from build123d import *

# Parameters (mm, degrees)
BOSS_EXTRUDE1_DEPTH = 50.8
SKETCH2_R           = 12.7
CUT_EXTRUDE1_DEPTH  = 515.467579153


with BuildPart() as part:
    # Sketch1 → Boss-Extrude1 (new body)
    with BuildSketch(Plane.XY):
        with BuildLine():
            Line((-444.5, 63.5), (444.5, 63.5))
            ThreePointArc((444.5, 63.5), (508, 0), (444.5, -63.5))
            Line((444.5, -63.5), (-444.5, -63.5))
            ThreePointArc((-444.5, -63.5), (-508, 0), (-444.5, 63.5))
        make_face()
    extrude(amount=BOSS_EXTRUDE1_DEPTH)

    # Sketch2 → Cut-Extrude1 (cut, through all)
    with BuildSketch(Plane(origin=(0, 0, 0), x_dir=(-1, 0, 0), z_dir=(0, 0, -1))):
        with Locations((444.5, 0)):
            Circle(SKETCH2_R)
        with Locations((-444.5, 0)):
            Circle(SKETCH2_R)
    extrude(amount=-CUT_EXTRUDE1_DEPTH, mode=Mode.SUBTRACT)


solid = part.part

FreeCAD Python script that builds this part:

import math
import FreeCAD as App
import Part
import Sketcher

V = App.Vector
Q = App.Units.Quantity

doc = App.newDocument("Part")
body = doc.addObject("PartDesign::Body", "Body")

# Sketch on XY plane
sketch1 = body.newObject("Sketcher::SketchObject", "Sketch")
sketch1.AttachmentSupport = (doc.getObject("XY_Plane"), [""])
sketch1.MapMode = "FlatFace"
sketch1.addGeometry([
    Part.LineSegment(V(444.5, 63.5, 0), V(-444.5, 63.5, 0)),
    Part.ArcOfCircle(Part.Circle(V(-444.5, 0, 0), V(0, 0, 1), 63.5), math.radians(90), math.radians(270)),
    Part.LineSegment(V(-444.5, -63.5, 0), V(444.5, -63.5, 0)),
    Part.ArcOfCircle(Part.Circle(V(444.5, 0, 0), V(0, 0, 1), 63.5), math.radians(-90), math.radians(90)),
], False)
sketch1.addConstraint([
    Sketcher.Constraint("Tangent", 0, 2, 1, 1),
    Sketcher.Constraint("Tangent", 1, 2, 2, 1),
    Sketcher.Constraint("Tangent", 2, 2, 3, 1),
    Sketcher.Constraint("Tangent", 3, 2, 0, 1),
    Sketcher.Constraint("Horizontal", 0),
    Sketcher.Constraint("Horizontal", 2),
    Sketcher.Constraint("Symmetric", 1, 3, 3, 3, -1, 1),
    Sketcher.Constraint("Radius", 1, Q("2.5 in")),
    Sketcher.Constraint("DistanceX", 0, 2, 0, 1, Q("35 in")),
])
pad1 = body.newObject("PartDesign::Pad", "Pad")
pad1.Profile = sketch1
pad1.Length = Q("2 in")

# Sketch on XY plane
sketch2 = body.newObject("Sketcher::SketchObject", "Sketch001")
sketch2.AttachmentSupport = (doc.getObject("XY_Plane"), [""])
sketch2.MapMode = "FlatFace"
sketch2.addGeometry([
    Part.Circle(V(-444.5, 0, 0), V(0, 0, 1), 12.7),
    Part.Circle(V(444.5, 0, 0), V(0, 0, 1), 12.7),
], False)
sketch2.addConstraint([
    Sketcher.Constraint("Equal", 0, 1),
    Sketcher.Constraint("Symmetric", 0, 3, 1, 3, -1, 1),
    Sketcher.Constraint("PointOnObject", 0, 3, -1),
    Sketcher.Constraint("Diameter", 0, Q("1 in")),
    Sketcher.Constraint("DistanceX", 0, 3, 1, 3, Q("35 in")),
])
pocket1 = body.newObject("PartDesign::Pocket", "Pocket")
pocket1.Profile = sketch2
pocket1.Type = "ThroughAll"
pocket1.Reversed = True

doc.recompute()
